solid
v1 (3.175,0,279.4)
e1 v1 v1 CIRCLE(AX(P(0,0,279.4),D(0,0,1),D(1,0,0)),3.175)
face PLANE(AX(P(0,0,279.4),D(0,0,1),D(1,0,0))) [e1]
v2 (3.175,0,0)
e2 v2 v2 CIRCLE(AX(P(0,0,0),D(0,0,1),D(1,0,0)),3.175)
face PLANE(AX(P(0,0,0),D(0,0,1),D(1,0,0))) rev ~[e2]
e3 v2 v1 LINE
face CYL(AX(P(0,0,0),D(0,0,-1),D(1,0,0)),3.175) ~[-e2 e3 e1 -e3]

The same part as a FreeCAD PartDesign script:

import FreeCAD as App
import Part
import Sketcher

V = App.Vector
Q = App.Units.Quantity

doc = App.newDocument("Part")
params = doc.addObject("Spreadsheet::Sheet", "Params")
for row, (alias, value) in enumerate([
    ("sketch1_diameter", "0.25 in"),
    ("pad1_length", "11 in"),
], start=1):
    params.set(f"A{row}", alias)
    params.set(f"B{row}", "=" + value)
    params.setAlias(f"B{row}", alias)

body = doc.addObject("PartDesign::Body", "Body")

sketch1 = body.newObject("Sketcher::SketchObject", "Sketch")
sketch1.AttachmentSupport = (doc.getObject("XY_Plane"), [""])
sketch1.MapMode = "FlatFace"
sketch1.addGeometry(Part.Circle(V(0, 0, 0), V(0, 0, 1), 3.2), False)
sketch1.addConstraint(Sketcher.Constraint("Coincident", 0, 3, -1, 1))
sketch1.addConstraint(Sketcher.Constraint("Diameter", 0, Q("0.25 in")))
sketch1.setExpression("Constraints[1]", "Params.sketch1_diameter")
pad1 = body.newObject("PartDesign::Pad", "Pad")
pad1.Profile = sketch1
pad1.setExpression("Length", "Params.pad1_length")

doc.recompute()
